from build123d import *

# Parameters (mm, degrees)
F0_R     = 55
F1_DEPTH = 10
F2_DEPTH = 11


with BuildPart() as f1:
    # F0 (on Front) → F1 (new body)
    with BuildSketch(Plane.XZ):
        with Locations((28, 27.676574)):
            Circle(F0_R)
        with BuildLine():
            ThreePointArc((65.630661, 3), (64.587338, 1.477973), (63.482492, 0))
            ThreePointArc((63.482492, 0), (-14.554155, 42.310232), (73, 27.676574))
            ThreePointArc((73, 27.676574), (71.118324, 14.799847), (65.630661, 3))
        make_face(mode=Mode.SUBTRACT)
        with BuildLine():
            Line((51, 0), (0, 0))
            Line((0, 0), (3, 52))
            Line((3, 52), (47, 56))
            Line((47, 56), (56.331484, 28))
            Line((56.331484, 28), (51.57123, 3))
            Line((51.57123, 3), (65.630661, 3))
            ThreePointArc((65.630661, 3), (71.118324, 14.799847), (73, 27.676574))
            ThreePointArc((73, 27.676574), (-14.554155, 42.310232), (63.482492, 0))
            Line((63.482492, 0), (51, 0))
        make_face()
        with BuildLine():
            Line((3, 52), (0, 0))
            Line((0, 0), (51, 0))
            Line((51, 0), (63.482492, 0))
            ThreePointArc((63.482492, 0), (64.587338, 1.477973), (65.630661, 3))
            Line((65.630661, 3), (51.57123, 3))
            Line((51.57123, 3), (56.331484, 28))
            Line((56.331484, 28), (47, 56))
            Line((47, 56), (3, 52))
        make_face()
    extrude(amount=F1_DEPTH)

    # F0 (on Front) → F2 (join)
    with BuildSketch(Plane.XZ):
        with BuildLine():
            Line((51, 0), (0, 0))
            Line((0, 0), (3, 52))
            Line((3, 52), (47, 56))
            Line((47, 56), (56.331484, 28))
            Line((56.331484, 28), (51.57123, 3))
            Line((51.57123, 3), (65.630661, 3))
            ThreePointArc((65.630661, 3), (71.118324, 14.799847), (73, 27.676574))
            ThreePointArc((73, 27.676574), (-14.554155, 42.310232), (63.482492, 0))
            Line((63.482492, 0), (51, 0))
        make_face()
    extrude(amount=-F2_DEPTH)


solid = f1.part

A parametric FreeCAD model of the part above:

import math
import FreeCAD as App
import Part
import Sketcher
Q = App.Units.Quantity

doc = App.newDocument("Part")
body = doc.addObject("PartDesign::Body", "Body")

sketch1 = body.newObject("Sketcher::SketchObject", "Sketch")
sketch1.AttachmentSupport = (doc.getObject("XZ_Plane"), [""])
sketch1.MapMode = "FlatFace"
sketch1.addGeometry(Part.Circle(App.Vector(28, 28, 0), App.Vector(0, 0, 1), 55), False)
sketch1.addConstraint(Sketcher.Constraint("Diameter", 0, Q("110 mm")))
sketch1.addConstraint(Sketcher.Constraint("DistanceX", -1, 1, 0, 3, Q("28 mm")))
sketch1.addConstraint(Sketcher.Constraint("DistanceY", -1, 1, 0, 3, Q("27.676574 mm")))
pad1 = body.newObject("PartDesign::Pad", "Pad")
pad1.Profile = sketch1
pad1.Length = 10

sketch2 = body.newObject("Sketcher::SketchObject", "Sketch001")
sketch2.AttachmentSupport = (doc.getObject("XZ_Plane"), [""])
sketch2.MapMode = "FlatFace"
sketch2.addGeometry(Part.LineSegment(App.Vector(0, 0, 0), App.Vector(3, 52, 0)), False)
sketch2.addGeometry(Part.LineSegment(App.Vector(3, 52, 0), App.Vector(47, 56, 0)), False)
sketch2.addGeometry(Part.LineSegment(App.Vector(47, 56, 0), App.Vector(56, 28, 0)), False)
sketch2.addGeometry(Part.LineSegment(App.Vector(56, 28, 0), App.Vector(52, 3, 0)), False)
sketch2.addGeometry(Part.LineSegment(App.Vector(52, 3, 0), App.Vector(66, 3, 0)), False)
sketch2.addGeometry(Part.ArcOfCircle(Part.Circle(App.Vector(28, 28, 0), App.Vector(0, 0, 1), 45), math.radians(-33), math.radians(0)), False)
sketch2.addGeometry(Part.ArcOfCircle(Part.Circle(App.Vector(28, 28, 0), App.Vector(0, 0, 1), 45), math.radians(0), math.radians(322)), False)
sketch2.addGeometry(Part.LineSegment(App.Vector(63, 0, 0), App.Vector(0, 0, 0)), False)
sketch2.addConstraint(Sketcher.Constraint("Coincident", 0, 2, 1, 1))
sketch2.addConstraint(Sketcher.Constraint("Coincident", 1, 2, 2, 1))
sketch2.addConstraint(Sketcher.Constraint("Coincident", 2, 2, 3, 1))
sketch2.addConstraint(Sketcher.Constraint("Coincident", 3, 2, 4, 1))
sketch2.addConstraint(Sketcher.Constraint("Coincident", 4, 2, 5, 1))
sketch2.addConstraint(Sketcher.Constraint("Tangent", 5, 2, 6, 1))
sketch2.addConstraint(Sketcher.Constraint("Coincident", 6, 2, 7, 1))
sketch2.addConstraint(Sketcher.Constraint("Coincident", 7, 2, 0, 1))
sketch2.addConstraint(Sketcher.Constraint("Horizontal", 4))
sketch2.addConstraint(Sketcher.Constraint("Horizontal", 7))
sketch2.addConstraint(Sketcher.Constraint("Coincident", 7, 2, -1, 1))
sketch2.addConstraint(Sketcher.Constraint("Horizontal", 6, 3, 5, 2))
sketch2.addConstraint(Sketcher.Constraint("Radius", 6, Q("45 mm")))
sketch2.addConstraint(Sketcher.Constraint("DistanceX", -1, 1, 6, 3, Q("28 mm")))
sketch2.addConstraint(Sketcher.Constraint("DistanceX", -1, 1, 0, 2, Q("3 mm")))
sketch2.addConstraint(Sketcher.Constraint("DistanceY", -1, 1, 0, 2, Q("52 mm")))
sketch2.addConstraint(Sketcher.Constraint("DistanceX", -1, 1, 1, 2, Q("47 mm")))
sketch2.addConstraint(Sketcher.Constraint("DistanceY", -1, 1, 1, 2, Q("56 mm")))
sketch2.addConstraint(Sketcher.Constraint("DistanceY", -1, 1, 2, 2, Q("28 mm")))
sketch2.addConstraint(Sketcher.Constraint("DistanceY", -1, 1, 3, 2, Q("3 mm")))
sketch2.addConstraint(Sketcher.Constraint("Radius", 5, Q("45.000003 mm")))
sketch2.addConstraint(Sketcher.Constraint("DistanceX", 4, 1, 4, 2, Q("14.059431 mm")))
sketch2.addConstraint(Sketcher.Constraint("DistanceX", 7, 2, 7, 1, Q("63.482492 mm")))
sketch2.addConstraint(Sketcher.Constraint("DistanceX", 2, 2, 6, 2, Q("7.151008 mm")))
pad2 = body.newObject("PartDesign::Pad", "Pad001")
pad2.Profile = sketch2
pad2.Length = 11
pad2.Reversed = True

doc.recompute()
